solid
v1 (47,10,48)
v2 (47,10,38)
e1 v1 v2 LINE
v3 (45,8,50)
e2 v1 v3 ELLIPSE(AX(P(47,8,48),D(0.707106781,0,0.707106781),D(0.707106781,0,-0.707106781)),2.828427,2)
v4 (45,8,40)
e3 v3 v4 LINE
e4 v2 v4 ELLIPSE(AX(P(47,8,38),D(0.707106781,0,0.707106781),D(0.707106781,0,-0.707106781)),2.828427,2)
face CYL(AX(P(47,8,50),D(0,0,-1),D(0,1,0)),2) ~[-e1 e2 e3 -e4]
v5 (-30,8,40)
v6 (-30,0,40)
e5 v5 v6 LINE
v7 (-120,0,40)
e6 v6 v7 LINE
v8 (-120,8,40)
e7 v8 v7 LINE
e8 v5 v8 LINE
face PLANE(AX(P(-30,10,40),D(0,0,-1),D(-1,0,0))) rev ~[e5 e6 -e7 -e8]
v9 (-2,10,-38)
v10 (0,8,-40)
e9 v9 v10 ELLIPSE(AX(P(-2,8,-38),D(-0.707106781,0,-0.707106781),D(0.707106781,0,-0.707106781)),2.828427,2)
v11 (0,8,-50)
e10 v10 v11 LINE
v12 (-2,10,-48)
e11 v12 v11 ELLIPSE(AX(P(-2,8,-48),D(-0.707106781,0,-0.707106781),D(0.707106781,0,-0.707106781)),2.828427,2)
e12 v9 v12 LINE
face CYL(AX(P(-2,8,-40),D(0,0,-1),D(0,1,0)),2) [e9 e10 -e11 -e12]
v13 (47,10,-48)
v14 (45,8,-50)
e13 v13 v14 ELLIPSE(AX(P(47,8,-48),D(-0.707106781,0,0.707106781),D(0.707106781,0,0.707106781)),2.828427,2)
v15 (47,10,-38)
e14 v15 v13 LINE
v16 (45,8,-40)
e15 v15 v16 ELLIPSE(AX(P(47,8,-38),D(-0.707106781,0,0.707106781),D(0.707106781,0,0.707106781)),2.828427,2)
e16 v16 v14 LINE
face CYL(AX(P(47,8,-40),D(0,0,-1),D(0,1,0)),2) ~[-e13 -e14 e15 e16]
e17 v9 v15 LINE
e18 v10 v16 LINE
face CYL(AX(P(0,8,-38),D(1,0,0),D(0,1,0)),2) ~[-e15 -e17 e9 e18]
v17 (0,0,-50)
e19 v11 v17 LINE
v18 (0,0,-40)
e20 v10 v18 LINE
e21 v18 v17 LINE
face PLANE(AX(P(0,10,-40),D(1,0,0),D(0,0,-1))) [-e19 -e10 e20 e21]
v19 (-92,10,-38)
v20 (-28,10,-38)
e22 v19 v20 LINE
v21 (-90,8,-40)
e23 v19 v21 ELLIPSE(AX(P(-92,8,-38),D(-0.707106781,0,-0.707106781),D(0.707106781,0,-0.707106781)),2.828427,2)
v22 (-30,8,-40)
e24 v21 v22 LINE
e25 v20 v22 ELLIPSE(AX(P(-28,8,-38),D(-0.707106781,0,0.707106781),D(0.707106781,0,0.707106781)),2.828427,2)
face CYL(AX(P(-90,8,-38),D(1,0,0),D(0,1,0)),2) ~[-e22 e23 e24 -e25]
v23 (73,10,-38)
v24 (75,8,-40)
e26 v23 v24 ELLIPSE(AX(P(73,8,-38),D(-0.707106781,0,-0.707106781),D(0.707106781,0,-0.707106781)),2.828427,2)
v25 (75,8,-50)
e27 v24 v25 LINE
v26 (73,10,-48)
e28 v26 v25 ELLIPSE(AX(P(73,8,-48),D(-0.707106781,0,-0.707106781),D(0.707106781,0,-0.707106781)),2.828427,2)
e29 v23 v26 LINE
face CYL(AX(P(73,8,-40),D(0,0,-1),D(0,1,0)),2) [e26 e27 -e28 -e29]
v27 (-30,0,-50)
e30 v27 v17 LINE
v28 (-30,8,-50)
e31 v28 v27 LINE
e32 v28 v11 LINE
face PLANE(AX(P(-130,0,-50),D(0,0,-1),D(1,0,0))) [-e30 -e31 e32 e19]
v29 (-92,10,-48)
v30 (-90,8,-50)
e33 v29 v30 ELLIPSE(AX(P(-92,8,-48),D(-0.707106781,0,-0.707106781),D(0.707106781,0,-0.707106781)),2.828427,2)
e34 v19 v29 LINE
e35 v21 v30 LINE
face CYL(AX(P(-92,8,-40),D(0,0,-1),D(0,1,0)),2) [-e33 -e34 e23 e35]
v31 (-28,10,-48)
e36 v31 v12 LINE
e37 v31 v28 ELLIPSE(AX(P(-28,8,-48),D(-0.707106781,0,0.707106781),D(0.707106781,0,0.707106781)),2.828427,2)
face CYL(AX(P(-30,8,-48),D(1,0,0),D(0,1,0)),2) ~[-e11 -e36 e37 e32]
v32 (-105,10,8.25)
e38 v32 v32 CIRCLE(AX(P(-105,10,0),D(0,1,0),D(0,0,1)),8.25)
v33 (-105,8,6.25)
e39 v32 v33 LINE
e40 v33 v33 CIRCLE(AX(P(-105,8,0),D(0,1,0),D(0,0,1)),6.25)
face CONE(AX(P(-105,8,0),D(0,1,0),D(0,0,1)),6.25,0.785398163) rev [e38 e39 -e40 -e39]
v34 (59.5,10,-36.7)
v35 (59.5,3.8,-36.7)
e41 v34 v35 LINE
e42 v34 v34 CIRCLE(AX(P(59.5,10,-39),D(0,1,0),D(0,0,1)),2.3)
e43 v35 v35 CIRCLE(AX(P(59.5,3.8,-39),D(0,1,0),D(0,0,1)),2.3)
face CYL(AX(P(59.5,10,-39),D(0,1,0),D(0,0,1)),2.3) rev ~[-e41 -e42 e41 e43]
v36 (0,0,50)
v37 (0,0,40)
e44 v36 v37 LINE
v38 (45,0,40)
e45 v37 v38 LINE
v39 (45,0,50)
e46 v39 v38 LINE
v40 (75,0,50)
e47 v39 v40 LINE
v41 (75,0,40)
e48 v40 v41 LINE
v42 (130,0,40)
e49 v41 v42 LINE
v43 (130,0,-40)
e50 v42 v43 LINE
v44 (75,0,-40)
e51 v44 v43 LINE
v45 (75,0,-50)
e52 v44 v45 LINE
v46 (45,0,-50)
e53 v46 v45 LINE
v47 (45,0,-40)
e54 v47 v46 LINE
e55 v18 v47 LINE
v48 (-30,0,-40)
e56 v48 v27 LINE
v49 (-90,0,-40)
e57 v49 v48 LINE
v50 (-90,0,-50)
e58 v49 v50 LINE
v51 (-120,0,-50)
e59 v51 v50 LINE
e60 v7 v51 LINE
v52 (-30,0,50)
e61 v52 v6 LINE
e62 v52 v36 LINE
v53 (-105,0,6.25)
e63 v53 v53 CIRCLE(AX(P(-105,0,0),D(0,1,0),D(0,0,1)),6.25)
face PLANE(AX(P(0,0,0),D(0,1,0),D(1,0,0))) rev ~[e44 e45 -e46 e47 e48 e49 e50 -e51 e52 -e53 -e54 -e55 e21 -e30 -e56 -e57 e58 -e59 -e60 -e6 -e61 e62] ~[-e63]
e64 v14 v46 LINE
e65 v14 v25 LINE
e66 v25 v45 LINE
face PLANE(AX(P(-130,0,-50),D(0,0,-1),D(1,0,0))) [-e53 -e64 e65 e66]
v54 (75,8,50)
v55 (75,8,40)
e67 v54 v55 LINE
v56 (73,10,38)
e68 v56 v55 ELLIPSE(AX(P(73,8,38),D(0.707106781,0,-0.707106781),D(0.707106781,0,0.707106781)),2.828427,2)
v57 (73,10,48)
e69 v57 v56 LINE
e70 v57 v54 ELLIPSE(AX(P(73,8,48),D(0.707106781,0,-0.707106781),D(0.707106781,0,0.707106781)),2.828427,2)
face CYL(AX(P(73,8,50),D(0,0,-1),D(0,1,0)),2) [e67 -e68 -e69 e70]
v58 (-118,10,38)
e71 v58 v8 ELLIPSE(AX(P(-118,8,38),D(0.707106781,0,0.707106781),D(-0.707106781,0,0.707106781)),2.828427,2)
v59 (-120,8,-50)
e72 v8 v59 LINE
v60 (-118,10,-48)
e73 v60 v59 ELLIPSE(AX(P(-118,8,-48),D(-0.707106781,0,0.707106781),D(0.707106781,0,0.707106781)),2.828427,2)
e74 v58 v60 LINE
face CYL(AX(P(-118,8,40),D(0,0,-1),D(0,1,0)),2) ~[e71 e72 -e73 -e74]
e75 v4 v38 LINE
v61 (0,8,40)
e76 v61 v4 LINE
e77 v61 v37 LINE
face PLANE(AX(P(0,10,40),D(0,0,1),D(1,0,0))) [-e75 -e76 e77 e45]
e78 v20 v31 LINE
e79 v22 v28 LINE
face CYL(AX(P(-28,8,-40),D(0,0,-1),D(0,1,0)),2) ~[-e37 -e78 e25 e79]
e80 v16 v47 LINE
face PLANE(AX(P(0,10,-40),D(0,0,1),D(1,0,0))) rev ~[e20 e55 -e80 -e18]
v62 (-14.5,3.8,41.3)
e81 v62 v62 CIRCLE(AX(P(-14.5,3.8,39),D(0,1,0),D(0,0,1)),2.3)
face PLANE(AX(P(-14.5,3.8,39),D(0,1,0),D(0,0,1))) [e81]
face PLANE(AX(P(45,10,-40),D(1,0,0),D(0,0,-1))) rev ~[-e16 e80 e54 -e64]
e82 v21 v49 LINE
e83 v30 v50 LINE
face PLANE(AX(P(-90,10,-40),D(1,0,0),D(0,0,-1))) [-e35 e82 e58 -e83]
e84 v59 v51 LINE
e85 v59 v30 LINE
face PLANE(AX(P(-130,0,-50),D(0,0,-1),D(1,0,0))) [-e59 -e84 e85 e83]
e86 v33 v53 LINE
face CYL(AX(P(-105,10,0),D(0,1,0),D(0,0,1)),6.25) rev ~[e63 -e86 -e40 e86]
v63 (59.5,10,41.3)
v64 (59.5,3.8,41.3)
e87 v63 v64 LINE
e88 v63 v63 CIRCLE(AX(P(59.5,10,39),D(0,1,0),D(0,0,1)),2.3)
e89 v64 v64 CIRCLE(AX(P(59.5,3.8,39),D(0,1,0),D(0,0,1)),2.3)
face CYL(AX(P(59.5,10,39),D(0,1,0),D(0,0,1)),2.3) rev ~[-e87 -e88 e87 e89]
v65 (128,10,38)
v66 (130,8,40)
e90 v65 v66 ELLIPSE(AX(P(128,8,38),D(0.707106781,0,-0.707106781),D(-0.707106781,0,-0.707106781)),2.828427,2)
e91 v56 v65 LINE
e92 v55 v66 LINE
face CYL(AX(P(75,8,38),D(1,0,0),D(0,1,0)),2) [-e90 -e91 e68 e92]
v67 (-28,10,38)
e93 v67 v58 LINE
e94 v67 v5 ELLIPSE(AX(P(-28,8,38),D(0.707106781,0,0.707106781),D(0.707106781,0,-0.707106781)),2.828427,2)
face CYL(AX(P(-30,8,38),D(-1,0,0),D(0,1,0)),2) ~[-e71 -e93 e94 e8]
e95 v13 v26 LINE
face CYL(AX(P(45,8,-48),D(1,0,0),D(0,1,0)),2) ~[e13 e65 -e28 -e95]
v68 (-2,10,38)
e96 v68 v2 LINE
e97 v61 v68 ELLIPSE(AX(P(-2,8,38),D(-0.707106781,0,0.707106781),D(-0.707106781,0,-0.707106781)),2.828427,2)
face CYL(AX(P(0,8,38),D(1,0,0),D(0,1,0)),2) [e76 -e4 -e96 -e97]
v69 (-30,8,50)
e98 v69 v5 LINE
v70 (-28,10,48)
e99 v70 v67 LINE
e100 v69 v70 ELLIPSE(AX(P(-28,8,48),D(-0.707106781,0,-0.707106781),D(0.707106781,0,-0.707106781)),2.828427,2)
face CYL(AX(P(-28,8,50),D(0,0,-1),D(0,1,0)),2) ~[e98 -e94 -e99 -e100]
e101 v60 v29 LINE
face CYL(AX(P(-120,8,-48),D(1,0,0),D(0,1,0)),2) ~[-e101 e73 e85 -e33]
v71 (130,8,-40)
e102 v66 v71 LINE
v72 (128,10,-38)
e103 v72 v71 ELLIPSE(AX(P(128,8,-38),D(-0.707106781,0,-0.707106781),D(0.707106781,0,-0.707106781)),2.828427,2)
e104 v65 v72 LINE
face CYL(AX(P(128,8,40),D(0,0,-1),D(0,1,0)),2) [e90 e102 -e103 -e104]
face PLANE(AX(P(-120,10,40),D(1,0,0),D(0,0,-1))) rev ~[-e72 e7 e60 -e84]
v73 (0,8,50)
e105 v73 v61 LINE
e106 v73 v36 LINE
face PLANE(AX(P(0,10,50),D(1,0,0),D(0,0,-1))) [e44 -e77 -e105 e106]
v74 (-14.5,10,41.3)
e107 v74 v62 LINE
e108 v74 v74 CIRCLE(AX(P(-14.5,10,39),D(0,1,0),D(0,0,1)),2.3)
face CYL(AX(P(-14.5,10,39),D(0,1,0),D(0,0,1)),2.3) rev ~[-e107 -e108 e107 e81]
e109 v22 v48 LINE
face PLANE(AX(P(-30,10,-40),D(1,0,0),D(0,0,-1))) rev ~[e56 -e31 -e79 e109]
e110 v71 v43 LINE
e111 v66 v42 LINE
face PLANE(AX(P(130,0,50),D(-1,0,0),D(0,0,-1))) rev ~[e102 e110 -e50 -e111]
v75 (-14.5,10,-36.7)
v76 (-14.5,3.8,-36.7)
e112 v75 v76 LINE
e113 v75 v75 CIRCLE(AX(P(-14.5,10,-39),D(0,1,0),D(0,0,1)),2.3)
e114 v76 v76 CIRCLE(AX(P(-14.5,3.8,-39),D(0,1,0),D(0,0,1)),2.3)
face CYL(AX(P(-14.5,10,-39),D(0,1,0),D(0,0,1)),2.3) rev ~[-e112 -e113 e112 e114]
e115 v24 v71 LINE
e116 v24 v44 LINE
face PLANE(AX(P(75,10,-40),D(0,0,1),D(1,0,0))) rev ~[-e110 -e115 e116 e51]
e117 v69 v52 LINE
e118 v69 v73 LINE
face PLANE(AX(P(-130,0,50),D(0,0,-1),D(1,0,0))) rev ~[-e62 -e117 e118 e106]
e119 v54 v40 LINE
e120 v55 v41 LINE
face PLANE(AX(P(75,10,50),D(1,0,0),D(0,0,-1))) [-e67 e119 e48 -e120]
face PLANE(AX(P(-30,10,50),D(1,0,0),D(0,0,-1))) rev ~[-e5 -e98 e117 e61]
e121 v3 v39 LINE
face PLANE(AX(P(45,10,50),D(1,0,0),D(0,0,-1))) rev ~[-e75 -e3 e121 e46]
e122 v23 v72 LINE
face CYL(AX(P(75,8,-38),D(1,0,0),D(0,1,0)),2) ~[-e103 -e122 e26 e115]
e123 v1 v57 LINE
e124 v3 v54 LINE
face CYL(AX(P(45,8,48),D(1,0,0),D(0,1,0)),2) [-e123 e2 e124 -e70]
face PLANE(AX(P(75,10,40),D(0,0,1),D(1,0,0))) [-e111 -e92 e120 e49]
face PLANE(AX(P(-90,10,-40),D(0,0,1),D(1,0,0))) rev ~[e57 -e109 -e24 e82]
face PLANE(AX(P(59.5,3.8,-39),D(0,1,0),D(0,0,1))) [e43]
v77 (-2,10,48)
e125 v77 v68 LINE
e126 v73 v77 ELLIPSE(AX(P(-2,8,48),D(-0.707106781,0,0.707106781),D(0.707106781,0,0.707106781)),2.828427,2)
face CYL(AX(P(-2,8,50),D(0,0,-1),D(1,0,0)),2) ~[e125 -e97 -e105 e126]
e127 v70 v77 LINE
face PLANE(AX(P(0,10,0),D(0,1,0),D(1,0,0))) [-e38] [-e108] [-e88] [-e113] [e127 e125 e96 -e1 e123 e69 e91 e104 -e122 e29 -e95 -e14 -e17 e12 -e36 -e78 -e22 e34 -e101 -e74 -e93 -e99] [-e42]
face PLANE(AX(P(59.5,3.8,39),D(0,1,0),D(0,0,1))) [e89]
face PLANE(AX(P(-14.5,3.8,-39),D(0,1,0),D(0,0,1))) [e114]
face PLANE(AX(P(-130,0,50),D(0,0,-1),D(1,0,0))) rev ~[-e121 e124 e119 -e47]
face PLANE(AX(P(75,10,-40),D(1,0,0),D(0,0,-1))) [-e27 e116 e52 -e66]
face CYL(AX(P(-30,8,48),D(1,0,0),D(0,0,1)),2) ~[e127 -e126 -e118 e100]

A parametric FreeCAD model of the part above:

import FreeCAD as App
import Part
import Sketcher
Q = App.Units.Quantity


def edges_at(feature, points):
    """Names of the edges that pass closest to the given points."""
    edges = feature.Shape.Edges
    near = lambda p: min(range(len(edges)), key=lambda i: edges[i].distToShape(Part.Vertex(*p))[0])
    return sorted({f"Edge{near(p) + 1}" for p in points})

doc = App.newDocument("Part")
params = doc.addObject("Spreadsheet::Sheet", "Params")
for row, (alias, value) in enumerate([
    ("sketch1_width", "260 mm"),
    ("sketch1_height", "100 mm"),
    ("pad1_length", "10 mm"),
    ("sketch2_width", "55 mm"),
    ("sketch2_width2", "100 mm"),
    ("sketch2_width3", "90 mm"),
    ("sketch2_width4", "60 mm"),
    ("sketch2_width5", "45 mm"),
    ("fillet_radius", "2 mm"),
    ("sketch3_diameter", "12.5 mm"),
    ("chamfer_size", "2 mm"),
    ("sketch4_diameter", "4.6 mm"),
    ("pocket3_length", "6.2 mm"),
], start=1):
    params.set(f"A{row}", alias)
    params.set(f"B{row}", "=" + value)
    params.setAlias(f"B{row}", alias)

body = doc.addObject("PartDesign::Body", "Body")

# Sketch on XZ plane
sketch1 = doc.addObject("Sketcher::SketchObject", "Sketch")
body.addObject(sketch1)
sketch1.AttachmentSupport = (doc.XZ_Plane, [""])
sketch1.MapMode = "FlatFace"
sketch1.addGeometry([
    Part.LineSegment(App.Vector(-130, -50, 0), App.Vector(-130, 50, 0)),
    Part.LineSegment(App.Vector(-130, 50, 0), App.Vector(130, 50, 0)),
    Part.LineSegment(App.Vector(130, 50, 0), App.Vector(130, -50, 0)),
    Part.LineSegment(App.Vector(130, -50, 0), App.Vector(-130, -50, 0)),
], False)
sketch1.addConstraint([
    Sketcher.Constraint("Coincident", 0, 2, 1, 1),
    Sketcher.Constraint("Coincident", 1, 2, 2, 1),
    Sketcher.Constraint("Coincident", 2, 2, 3, 1),
    Sketcher.Constraint("Coincident", 3, 2, 0, 1),
    Sketcher.Constraint("Vertical", 0),
    Sketcher.Constraint("Horizontal", 1),
    Sketcher.Constraint("Vertical", 2),
    Sketcher.Constraint("Horizontal", 3),
    Sketcher.Constraint("Symmetric", 0, 2, 2, 2, -1, 1),
    Sketcher.Constraint("DistanceX", 1, 1, 1, 2, Q("260 mm")),
    Sketcher.Constraint("DistanceY", 0, 1, 0, 2, Q("100 mm")),
])
sketch1.setExpression("Constraints[9]", "Params.sketch1_width")
sketch1.setExpression("Constraints[10]", "Params.sketch1_height")
pad1 = doc.addObject("PartDesign::Pad", "Pad")
body.addObject(pad1)
pad1.Profile = sketch1
pad1.setExpression("Length", "Params.pad1_length")
pad1.Reversed = True

# Sketch on XZ plane
sketch2 = doc.addObject("Sketcher::SketchObject", "Sketch001")
body.addObject(sketch2)
sketch2.AttachmentSupport = (doc.XZ_Plane, [""])
sketch2.MapMode = "FlatFace"
sketch2.AttachmentOffset = App.Placement(App.Vector(0, 0, -10), App.Rotation())
sketch2.addGeometry([
    Part.LineSegment(App.Vector(75, -50, 0), App.Vector(75, -40, 0)),  # 0
    Part.LineSegment(App.Vector(75, -40, 0), App.Vector(130, -40, 0)),  # 1
    Part.LineSegment(App.Vector(130, -40, 0), App.Vector(130, -50, 0)),  # 2
    Part.LineSegment(App.Vector(130, -50, 0), App.Vector(75, -50, 0)),  # 3
    Part.LineSegment(App.Vector(75, 40, 0), App.Vector(75, 50, 0)),  # 4
    Part.LineSegment(App.Vector(75, 50, 0), App.Vector(130, 50, 0)),  # 5
    Part.LineSegment(App.Vector(130, 50, 0), App.Vector(130, 40, 0)),  # 6
    Part.LineSegment(App.Vector(130, 40, 0), App.Vector(75, 40, 0)),  # 7
    Part.LineSegment(App.Vector(-130, 50, 0), App.Vector(-30, 50, 0)),  # 8
    Part.LineSegment(App.Vector(-30, 50, 0), App.Vector(-30, 40, 0)),  # 9
    Part.LineSegment(App.Vector(-30, 40, 0), App.Vector(-120, 40, 0)),  # 10
    Part.LineSegment(App.Vector(-120, 40, 0), App.Vector(-120, -50, 0)),  # 11
    Part.LineSegment(App.Vector(-120, -50, 0), App.Vector(-130, -50, 0)),  # 12
    Part.LineSegment(App.Vector(-130, -50, 0), App.Vector(-130, 50, 0)),  # 13
    Part.LineSegment(App.Vector(-90, -50, 0), App.Vector(-90, -40, 0)),  # 14
    Part.LineSegment(App.Vector(-90, -40, 0), App.Vector(-30, -40, 0)),  # 15
    Part.LineSegment(App.Vector(-30, -40, 0), App.Vector(-30, -50, 0)),  # 16
    Part.LineSegment(App.Vector(-30, -50, 0), App.Vector(-90, -50, 0)),  # 17
    Part.LineSegment(App.Vector(0, -50, 0), App.Vector(0, -40, 0)),  # 18
    Part.LineSegment(App.Vector(0, -40, 0), App.Vector(45, -40, 0)),  # 19
    Part.LineSegment(App.Vector(45, -40, 0), App.Vector(45, -50, 0)),  # 20
    Part.LineSegment(App.Vector(45, -50, 0), App.Vector(0, -50, 0)),  # 21
    Part.LineSegment(App.Vector(0, 40, 0), App.Vector(0, 50, 0)),  # 22
    Part.LineSegment(App.Vector(0, 50, 0), App.Vector(45, 50, 0)),  # 23
    Part.LineSegment(App.Vector(45, 50, 0), App.Vector(45, 40, 0)),  # 24
    Part.LineSegment(App.Vector(45, 40, 0), App.Vector(0, 40, 0)),  # 25
], False)
sketch2.addConstraint([
    Sketcher.Constraint("Coincident", 0, 2, 1, 1),
    Sketcher.Constraint("Coincident", 1, 2, 2, 1),
    Sketcher.Constraint("Coincident", 2, 2, 3, 1),
    Sketcher.Constraint("Coincident", 3, 2, 0, 1),
    Sketcher.Constraint("Coincident", 4, 2, 5, 1),
    Sketcher.Constraint("Coincident", 5, 2, 6, 1),
    Sketcher.Constraint("Coincident", 6, 2, 7, 1),
    Sketcher.Constraint("Coincident", 7, 2, 4, 1),
    Sketcher.Constraint("Coincident", 8, 2, 9, 1),
    Sketcher.Constraint("Coincident", 9, 2, 10, 1),
    Sketcher.Constraint("Coincident", 10, 2, 11, 1),
    Sketcher.Constraint("Coincident", 11, 2, 12, 1),
    Sketcher.Constraint("Coincident", 12, 2, 13, 1),
    Sketcher.Constraint("Coincident", 13, 2, 8, 1),
    Sketcher.Constraint("Coincident", 14, 2, 15, 1),
    Sketcher.Constraint("Coincident", 15, 2, 16, 1),
    Sketcher.Constraint("Coincident", 16, 2, 17, 1),
    Sketcher.Constraint("Coincident", 17, 2, 14, 1),
    Sketcher.Constraint("Coincident", 18, 2, 19, 1),
    Sketcher.Constraint("Coincident", 19, 2, 20, 1),
    Sketcher.Constraint("Coincident", 20, 2, 21, 1),
    Sketcher.Constraint("Coincident", 21, 2, 18, 1),
    Sketcher.Constraint("Coincident", 22, 2, 23, 1),
    Sketcher.Constraint("Coincident", 23, 2, 24, 1),
    Sketcher.Constraint("Coincident", 24, 2, 25, 1),
    Sketcher.Constraint("Coincident", 25, 2, 22, 1),
    Sketcher.Constraint("Vertical", 0),
    Sketcher.Constraint("Horizontal", 1),
    Sketcher.Constraint("Vertical", 2),
    Sketcher.Constraint("Horizontal", 3),
    Sketcher.Constraint("Vertical", 4),
    Sketcher.Constraint("Horizontal", 5),
    Sketcher.Constraint("Vertical", 6),
    Sketcher.Constraint("Horizontal", 7),
    Sketcher.Constraint("Horizontal", 8),
    Sketcher.Constraint("Vertical", 9),
    Sketcher.Constraint("Horizontal", 10),
    Sketcher.Constraint("Vertical", 11),
    Sketcher.Constraint("Horizontal", 12),
    Sketcher.Constraint("Vertical", 13),
    Sketcher.Constraint("Vertical", 14),
    Sketcher.Constraint("Horizontal", 15),
    Sketcher.Constraint("Vertical", 16),
    Sketcher.Constraint("Horizontal", 17),
    Sketcher.Constraint("Vertical", 18),
    Sketcher.Constraint("Horizontal", 19),
    Sketcher.Constraint("Vertical", 20),
    Sketcher.Constraint("Horizontal", 21),
    Sketcher.Constraint("Vertical", 22),
    Sketcher.Constraint("Horizontal", 23),
    Sketcher.Constraint("Vertical", 24),
    Sketcher.Constraint("Horizontal", 25),
    Sketcher.Constraint("Symmetric", 5, 2, 12, 2, -1, 1),
    Sketcher.Constraint("Symmetric", 2, 2, 13, 2, -1, 1),
    Sketcher.Constraint("Symmetric", 21, 2, 22, 2, -1, 1),
    Sketcher.Constraint("Symmetric", 3, 2, 4, 2, -1),
    Sketcher.Constraint("Symmetric", 9, 2, 15, 2, -1),
    Sketcher.Constraint("Symmetric", 19, 2, 24, 2, -1),
    Sketcher.Constraint("PointOnObject", 18, 2, -2),
    Sketcher.Constraint("Horizontal", 7, 2, 9, 2),
    Sketcher.Constraint("Horizontal", 1, 2, 14, 2),
    Sketcher.Constraint("Horizontal", 12, 2, 16, 2),
    Sketcher.Constraint("Horizontal", 15, 2, 18, 2),
    Sketcher.Constraint("Horizontal", 17, 2, 20, 2),
    Sketcher.Constraint("Equal", 12, 0),
    Sketcher.Constraint("Equal", 10, 11),
    Sketcher.Constraint("DistanceX", 1, 1, 1, 2, Q("55 mm")),
    Sketcher.Constraint("DistanceX", 8, 1, 8, 2, Q("100 mm")),
    Sketcher.Constraint("DistanceX", 10, 2, 10, 1, Q("90 mm")),
    Sketcher.Constraint("DistanceX", 15, 1, 15, 2, Q("60 mm")),
    Sketcher.Constraint("DistanceX", 19, 1, 19, 2, Q("45 mm")),
    Sketcher.Constraint("DistanceX", -1, 1, 0, 2, Q("75 mm")),
])
sketch2.setExpression("Constraints[66]", "Params.sketch2_width")
sketch2.setExpression("Constraints[67]", "Params.sketch2_width2")
sketch2.setExpression("Constraints[68]", "Params.sketch2_width3")
sketch2.setExpression("Constraints[69]", "Params.sketch2_width4")
sketch2.setExpression("Constraints[70]", "Params.sketch2_width5")
pocket1 = doc.addObject("PartDesign::Pocket", "Pocket")
body.addObject(pocket1)
pocket1.Profile = sketch2
pocket1.Type = "ThroughAll"
pocket1.Reversed = True
doc.recompute()

fillet = doc.addObject("PartDesign::Fillet", "Fillet")
body.addObject(fillet)
fillet.Base = (pocket1, edges_at(pocket1, [
    (-15, 10, 50),
    (60, 10, 50),
    (130, 10, 0),
    (60, 10, -50),
    (-15, 10, -50),
    (-105, 10, -50),
    (0, 10, -45),
    (22.5, 10, -40),
    (45, 10, -45),
    (-90, 10, -45),
    (-60, 10, -40),
    (-30, 10, -45),
    (-30, 10, 45),
    (-75, 10, 40),
    (-120, 10, -5),
    (102.5, 10, 40),
    (75, 10, 45),
    (0, 10, 45),
    (45, 10, 45),
    (22.5, 10, 40),
    (75, 10, -45),
    (102.5, 10, -40),
]))
fillet.setExpression("Radius", "Params.fillet_radius")

# Sketch on XZ plane
sketch3 = doc.addObject("Sketcher::SketchObject", "Sketch002")
body.addObject(sketch3)
sketch3.AttachmentSupport = (doc.XZ_Plane, [""])
sketch3.MapMode = "FlatFace"
sketch3.AttachmentOffset = App.Placement(App.Vector(0, 0, -10), App.Rotation())
sketch3.addGeometry(Part.Circle(App.Vector(-105, 0, 0), App.Vector(0, 0, 1), 6), False)
sketch3.addConstraint([
    Sketcher.Constraint("PointOnObject", 0, 3, -1),
    Sketcher.Constraint("Diameter", 0, Q("12.5 mm")),
    Sketcher.Constraint("DistanceX", 0, 3, -1, 1, Q("105 mm")),
])
sketch3.setExpression("Constraints[1]", "Params.sketch3_diameter")
pocket2 = doc.addObject("PartDesign::Pocket", "Pocket001")
body.addObject(pocket2)
pocket2.Profile = sketch3
pocket2.Type = "ThroughAll"
pocket2.Reversed = True
doc.recompute()

chamfer = doc.addObject("PartDesign::Chamfer", "Chamfer")
body.addObject(chamfer)
chamfer.Base = (pocket2, edges_at(pocket2, [(-105, 10, -6.25)]))
chamfer.setExpression("Size", "Params.chamfer_size")

# Sketch on XZ plane
sketch4 = doc.addObject("Sketcher::SketchObject", "Sketch003")
body.addObject(sketch4)
sketch4.AttachmentSupport = (doc.XZ_Plane, [""])
sketch4.MapMode = "FlatFace"
sketch4.AttachmentOffset = App.Placement(App.Vector(0, 0, -10), App.Rotation())
sketch4.addGeometry([
    Part.Circle(App.Vector(59.5, -39, 0), App.Vector(0, 0, 1), 2.3),
    Part.Circle(App.Vector(-14.5, -39, 0), App.Vector(0, 0, 1), 2.3),
    Part.Circle(App.Vector(59.5, 39, 0), App.Vector(0, 0, 1), 2.3),
    Part.Circle(App.Vector(-14.5, 39, 0), App.Vector(0, 0, 1), 2.3),
], False)
sketch4.addConstraint([
    Sketcher.Constraint("Equal", 0, 1),
    Sketcher.Constraint("Equal", 1, 2),
    Sketcher.Constraint("Equal", 2, 3),
    Sketcher.Constraint("Symmetric", 0, 3, 2, 3, -1),
    Sketcher.Constraint("Symmetric", 1, 3, 3, 3, -1),
    Sketcher.Constraint("Horizontal", 0, 3, 1, 3),
    Sketcher.Constraint("Diameter", 0, Q("4.6 mm")),
    Sketcher.Constraint("DistanceY", 0, 3, -1, 1, Q("39 mm")),
    Sketcher.Constraint("DistanceX", 1, 3, 0, 3, Q("74 mm")),
    Sketcher.Constraint("DistanceX", -1, 1, 0, 3, Q("59.5 mm")),
])
sketch4.setExpression("Constraints[6]", "Params.sketch4_diameter")
pocket3 = doc.addObject("PartDesign::Pocket", "Pocket002")
body.addObject(pocket3)
pocket3.Profile = sketch4
pocket3.setExpression("Length", "Params.pocket3_length")
pocket3.Reversed = True

doc.recompute()
